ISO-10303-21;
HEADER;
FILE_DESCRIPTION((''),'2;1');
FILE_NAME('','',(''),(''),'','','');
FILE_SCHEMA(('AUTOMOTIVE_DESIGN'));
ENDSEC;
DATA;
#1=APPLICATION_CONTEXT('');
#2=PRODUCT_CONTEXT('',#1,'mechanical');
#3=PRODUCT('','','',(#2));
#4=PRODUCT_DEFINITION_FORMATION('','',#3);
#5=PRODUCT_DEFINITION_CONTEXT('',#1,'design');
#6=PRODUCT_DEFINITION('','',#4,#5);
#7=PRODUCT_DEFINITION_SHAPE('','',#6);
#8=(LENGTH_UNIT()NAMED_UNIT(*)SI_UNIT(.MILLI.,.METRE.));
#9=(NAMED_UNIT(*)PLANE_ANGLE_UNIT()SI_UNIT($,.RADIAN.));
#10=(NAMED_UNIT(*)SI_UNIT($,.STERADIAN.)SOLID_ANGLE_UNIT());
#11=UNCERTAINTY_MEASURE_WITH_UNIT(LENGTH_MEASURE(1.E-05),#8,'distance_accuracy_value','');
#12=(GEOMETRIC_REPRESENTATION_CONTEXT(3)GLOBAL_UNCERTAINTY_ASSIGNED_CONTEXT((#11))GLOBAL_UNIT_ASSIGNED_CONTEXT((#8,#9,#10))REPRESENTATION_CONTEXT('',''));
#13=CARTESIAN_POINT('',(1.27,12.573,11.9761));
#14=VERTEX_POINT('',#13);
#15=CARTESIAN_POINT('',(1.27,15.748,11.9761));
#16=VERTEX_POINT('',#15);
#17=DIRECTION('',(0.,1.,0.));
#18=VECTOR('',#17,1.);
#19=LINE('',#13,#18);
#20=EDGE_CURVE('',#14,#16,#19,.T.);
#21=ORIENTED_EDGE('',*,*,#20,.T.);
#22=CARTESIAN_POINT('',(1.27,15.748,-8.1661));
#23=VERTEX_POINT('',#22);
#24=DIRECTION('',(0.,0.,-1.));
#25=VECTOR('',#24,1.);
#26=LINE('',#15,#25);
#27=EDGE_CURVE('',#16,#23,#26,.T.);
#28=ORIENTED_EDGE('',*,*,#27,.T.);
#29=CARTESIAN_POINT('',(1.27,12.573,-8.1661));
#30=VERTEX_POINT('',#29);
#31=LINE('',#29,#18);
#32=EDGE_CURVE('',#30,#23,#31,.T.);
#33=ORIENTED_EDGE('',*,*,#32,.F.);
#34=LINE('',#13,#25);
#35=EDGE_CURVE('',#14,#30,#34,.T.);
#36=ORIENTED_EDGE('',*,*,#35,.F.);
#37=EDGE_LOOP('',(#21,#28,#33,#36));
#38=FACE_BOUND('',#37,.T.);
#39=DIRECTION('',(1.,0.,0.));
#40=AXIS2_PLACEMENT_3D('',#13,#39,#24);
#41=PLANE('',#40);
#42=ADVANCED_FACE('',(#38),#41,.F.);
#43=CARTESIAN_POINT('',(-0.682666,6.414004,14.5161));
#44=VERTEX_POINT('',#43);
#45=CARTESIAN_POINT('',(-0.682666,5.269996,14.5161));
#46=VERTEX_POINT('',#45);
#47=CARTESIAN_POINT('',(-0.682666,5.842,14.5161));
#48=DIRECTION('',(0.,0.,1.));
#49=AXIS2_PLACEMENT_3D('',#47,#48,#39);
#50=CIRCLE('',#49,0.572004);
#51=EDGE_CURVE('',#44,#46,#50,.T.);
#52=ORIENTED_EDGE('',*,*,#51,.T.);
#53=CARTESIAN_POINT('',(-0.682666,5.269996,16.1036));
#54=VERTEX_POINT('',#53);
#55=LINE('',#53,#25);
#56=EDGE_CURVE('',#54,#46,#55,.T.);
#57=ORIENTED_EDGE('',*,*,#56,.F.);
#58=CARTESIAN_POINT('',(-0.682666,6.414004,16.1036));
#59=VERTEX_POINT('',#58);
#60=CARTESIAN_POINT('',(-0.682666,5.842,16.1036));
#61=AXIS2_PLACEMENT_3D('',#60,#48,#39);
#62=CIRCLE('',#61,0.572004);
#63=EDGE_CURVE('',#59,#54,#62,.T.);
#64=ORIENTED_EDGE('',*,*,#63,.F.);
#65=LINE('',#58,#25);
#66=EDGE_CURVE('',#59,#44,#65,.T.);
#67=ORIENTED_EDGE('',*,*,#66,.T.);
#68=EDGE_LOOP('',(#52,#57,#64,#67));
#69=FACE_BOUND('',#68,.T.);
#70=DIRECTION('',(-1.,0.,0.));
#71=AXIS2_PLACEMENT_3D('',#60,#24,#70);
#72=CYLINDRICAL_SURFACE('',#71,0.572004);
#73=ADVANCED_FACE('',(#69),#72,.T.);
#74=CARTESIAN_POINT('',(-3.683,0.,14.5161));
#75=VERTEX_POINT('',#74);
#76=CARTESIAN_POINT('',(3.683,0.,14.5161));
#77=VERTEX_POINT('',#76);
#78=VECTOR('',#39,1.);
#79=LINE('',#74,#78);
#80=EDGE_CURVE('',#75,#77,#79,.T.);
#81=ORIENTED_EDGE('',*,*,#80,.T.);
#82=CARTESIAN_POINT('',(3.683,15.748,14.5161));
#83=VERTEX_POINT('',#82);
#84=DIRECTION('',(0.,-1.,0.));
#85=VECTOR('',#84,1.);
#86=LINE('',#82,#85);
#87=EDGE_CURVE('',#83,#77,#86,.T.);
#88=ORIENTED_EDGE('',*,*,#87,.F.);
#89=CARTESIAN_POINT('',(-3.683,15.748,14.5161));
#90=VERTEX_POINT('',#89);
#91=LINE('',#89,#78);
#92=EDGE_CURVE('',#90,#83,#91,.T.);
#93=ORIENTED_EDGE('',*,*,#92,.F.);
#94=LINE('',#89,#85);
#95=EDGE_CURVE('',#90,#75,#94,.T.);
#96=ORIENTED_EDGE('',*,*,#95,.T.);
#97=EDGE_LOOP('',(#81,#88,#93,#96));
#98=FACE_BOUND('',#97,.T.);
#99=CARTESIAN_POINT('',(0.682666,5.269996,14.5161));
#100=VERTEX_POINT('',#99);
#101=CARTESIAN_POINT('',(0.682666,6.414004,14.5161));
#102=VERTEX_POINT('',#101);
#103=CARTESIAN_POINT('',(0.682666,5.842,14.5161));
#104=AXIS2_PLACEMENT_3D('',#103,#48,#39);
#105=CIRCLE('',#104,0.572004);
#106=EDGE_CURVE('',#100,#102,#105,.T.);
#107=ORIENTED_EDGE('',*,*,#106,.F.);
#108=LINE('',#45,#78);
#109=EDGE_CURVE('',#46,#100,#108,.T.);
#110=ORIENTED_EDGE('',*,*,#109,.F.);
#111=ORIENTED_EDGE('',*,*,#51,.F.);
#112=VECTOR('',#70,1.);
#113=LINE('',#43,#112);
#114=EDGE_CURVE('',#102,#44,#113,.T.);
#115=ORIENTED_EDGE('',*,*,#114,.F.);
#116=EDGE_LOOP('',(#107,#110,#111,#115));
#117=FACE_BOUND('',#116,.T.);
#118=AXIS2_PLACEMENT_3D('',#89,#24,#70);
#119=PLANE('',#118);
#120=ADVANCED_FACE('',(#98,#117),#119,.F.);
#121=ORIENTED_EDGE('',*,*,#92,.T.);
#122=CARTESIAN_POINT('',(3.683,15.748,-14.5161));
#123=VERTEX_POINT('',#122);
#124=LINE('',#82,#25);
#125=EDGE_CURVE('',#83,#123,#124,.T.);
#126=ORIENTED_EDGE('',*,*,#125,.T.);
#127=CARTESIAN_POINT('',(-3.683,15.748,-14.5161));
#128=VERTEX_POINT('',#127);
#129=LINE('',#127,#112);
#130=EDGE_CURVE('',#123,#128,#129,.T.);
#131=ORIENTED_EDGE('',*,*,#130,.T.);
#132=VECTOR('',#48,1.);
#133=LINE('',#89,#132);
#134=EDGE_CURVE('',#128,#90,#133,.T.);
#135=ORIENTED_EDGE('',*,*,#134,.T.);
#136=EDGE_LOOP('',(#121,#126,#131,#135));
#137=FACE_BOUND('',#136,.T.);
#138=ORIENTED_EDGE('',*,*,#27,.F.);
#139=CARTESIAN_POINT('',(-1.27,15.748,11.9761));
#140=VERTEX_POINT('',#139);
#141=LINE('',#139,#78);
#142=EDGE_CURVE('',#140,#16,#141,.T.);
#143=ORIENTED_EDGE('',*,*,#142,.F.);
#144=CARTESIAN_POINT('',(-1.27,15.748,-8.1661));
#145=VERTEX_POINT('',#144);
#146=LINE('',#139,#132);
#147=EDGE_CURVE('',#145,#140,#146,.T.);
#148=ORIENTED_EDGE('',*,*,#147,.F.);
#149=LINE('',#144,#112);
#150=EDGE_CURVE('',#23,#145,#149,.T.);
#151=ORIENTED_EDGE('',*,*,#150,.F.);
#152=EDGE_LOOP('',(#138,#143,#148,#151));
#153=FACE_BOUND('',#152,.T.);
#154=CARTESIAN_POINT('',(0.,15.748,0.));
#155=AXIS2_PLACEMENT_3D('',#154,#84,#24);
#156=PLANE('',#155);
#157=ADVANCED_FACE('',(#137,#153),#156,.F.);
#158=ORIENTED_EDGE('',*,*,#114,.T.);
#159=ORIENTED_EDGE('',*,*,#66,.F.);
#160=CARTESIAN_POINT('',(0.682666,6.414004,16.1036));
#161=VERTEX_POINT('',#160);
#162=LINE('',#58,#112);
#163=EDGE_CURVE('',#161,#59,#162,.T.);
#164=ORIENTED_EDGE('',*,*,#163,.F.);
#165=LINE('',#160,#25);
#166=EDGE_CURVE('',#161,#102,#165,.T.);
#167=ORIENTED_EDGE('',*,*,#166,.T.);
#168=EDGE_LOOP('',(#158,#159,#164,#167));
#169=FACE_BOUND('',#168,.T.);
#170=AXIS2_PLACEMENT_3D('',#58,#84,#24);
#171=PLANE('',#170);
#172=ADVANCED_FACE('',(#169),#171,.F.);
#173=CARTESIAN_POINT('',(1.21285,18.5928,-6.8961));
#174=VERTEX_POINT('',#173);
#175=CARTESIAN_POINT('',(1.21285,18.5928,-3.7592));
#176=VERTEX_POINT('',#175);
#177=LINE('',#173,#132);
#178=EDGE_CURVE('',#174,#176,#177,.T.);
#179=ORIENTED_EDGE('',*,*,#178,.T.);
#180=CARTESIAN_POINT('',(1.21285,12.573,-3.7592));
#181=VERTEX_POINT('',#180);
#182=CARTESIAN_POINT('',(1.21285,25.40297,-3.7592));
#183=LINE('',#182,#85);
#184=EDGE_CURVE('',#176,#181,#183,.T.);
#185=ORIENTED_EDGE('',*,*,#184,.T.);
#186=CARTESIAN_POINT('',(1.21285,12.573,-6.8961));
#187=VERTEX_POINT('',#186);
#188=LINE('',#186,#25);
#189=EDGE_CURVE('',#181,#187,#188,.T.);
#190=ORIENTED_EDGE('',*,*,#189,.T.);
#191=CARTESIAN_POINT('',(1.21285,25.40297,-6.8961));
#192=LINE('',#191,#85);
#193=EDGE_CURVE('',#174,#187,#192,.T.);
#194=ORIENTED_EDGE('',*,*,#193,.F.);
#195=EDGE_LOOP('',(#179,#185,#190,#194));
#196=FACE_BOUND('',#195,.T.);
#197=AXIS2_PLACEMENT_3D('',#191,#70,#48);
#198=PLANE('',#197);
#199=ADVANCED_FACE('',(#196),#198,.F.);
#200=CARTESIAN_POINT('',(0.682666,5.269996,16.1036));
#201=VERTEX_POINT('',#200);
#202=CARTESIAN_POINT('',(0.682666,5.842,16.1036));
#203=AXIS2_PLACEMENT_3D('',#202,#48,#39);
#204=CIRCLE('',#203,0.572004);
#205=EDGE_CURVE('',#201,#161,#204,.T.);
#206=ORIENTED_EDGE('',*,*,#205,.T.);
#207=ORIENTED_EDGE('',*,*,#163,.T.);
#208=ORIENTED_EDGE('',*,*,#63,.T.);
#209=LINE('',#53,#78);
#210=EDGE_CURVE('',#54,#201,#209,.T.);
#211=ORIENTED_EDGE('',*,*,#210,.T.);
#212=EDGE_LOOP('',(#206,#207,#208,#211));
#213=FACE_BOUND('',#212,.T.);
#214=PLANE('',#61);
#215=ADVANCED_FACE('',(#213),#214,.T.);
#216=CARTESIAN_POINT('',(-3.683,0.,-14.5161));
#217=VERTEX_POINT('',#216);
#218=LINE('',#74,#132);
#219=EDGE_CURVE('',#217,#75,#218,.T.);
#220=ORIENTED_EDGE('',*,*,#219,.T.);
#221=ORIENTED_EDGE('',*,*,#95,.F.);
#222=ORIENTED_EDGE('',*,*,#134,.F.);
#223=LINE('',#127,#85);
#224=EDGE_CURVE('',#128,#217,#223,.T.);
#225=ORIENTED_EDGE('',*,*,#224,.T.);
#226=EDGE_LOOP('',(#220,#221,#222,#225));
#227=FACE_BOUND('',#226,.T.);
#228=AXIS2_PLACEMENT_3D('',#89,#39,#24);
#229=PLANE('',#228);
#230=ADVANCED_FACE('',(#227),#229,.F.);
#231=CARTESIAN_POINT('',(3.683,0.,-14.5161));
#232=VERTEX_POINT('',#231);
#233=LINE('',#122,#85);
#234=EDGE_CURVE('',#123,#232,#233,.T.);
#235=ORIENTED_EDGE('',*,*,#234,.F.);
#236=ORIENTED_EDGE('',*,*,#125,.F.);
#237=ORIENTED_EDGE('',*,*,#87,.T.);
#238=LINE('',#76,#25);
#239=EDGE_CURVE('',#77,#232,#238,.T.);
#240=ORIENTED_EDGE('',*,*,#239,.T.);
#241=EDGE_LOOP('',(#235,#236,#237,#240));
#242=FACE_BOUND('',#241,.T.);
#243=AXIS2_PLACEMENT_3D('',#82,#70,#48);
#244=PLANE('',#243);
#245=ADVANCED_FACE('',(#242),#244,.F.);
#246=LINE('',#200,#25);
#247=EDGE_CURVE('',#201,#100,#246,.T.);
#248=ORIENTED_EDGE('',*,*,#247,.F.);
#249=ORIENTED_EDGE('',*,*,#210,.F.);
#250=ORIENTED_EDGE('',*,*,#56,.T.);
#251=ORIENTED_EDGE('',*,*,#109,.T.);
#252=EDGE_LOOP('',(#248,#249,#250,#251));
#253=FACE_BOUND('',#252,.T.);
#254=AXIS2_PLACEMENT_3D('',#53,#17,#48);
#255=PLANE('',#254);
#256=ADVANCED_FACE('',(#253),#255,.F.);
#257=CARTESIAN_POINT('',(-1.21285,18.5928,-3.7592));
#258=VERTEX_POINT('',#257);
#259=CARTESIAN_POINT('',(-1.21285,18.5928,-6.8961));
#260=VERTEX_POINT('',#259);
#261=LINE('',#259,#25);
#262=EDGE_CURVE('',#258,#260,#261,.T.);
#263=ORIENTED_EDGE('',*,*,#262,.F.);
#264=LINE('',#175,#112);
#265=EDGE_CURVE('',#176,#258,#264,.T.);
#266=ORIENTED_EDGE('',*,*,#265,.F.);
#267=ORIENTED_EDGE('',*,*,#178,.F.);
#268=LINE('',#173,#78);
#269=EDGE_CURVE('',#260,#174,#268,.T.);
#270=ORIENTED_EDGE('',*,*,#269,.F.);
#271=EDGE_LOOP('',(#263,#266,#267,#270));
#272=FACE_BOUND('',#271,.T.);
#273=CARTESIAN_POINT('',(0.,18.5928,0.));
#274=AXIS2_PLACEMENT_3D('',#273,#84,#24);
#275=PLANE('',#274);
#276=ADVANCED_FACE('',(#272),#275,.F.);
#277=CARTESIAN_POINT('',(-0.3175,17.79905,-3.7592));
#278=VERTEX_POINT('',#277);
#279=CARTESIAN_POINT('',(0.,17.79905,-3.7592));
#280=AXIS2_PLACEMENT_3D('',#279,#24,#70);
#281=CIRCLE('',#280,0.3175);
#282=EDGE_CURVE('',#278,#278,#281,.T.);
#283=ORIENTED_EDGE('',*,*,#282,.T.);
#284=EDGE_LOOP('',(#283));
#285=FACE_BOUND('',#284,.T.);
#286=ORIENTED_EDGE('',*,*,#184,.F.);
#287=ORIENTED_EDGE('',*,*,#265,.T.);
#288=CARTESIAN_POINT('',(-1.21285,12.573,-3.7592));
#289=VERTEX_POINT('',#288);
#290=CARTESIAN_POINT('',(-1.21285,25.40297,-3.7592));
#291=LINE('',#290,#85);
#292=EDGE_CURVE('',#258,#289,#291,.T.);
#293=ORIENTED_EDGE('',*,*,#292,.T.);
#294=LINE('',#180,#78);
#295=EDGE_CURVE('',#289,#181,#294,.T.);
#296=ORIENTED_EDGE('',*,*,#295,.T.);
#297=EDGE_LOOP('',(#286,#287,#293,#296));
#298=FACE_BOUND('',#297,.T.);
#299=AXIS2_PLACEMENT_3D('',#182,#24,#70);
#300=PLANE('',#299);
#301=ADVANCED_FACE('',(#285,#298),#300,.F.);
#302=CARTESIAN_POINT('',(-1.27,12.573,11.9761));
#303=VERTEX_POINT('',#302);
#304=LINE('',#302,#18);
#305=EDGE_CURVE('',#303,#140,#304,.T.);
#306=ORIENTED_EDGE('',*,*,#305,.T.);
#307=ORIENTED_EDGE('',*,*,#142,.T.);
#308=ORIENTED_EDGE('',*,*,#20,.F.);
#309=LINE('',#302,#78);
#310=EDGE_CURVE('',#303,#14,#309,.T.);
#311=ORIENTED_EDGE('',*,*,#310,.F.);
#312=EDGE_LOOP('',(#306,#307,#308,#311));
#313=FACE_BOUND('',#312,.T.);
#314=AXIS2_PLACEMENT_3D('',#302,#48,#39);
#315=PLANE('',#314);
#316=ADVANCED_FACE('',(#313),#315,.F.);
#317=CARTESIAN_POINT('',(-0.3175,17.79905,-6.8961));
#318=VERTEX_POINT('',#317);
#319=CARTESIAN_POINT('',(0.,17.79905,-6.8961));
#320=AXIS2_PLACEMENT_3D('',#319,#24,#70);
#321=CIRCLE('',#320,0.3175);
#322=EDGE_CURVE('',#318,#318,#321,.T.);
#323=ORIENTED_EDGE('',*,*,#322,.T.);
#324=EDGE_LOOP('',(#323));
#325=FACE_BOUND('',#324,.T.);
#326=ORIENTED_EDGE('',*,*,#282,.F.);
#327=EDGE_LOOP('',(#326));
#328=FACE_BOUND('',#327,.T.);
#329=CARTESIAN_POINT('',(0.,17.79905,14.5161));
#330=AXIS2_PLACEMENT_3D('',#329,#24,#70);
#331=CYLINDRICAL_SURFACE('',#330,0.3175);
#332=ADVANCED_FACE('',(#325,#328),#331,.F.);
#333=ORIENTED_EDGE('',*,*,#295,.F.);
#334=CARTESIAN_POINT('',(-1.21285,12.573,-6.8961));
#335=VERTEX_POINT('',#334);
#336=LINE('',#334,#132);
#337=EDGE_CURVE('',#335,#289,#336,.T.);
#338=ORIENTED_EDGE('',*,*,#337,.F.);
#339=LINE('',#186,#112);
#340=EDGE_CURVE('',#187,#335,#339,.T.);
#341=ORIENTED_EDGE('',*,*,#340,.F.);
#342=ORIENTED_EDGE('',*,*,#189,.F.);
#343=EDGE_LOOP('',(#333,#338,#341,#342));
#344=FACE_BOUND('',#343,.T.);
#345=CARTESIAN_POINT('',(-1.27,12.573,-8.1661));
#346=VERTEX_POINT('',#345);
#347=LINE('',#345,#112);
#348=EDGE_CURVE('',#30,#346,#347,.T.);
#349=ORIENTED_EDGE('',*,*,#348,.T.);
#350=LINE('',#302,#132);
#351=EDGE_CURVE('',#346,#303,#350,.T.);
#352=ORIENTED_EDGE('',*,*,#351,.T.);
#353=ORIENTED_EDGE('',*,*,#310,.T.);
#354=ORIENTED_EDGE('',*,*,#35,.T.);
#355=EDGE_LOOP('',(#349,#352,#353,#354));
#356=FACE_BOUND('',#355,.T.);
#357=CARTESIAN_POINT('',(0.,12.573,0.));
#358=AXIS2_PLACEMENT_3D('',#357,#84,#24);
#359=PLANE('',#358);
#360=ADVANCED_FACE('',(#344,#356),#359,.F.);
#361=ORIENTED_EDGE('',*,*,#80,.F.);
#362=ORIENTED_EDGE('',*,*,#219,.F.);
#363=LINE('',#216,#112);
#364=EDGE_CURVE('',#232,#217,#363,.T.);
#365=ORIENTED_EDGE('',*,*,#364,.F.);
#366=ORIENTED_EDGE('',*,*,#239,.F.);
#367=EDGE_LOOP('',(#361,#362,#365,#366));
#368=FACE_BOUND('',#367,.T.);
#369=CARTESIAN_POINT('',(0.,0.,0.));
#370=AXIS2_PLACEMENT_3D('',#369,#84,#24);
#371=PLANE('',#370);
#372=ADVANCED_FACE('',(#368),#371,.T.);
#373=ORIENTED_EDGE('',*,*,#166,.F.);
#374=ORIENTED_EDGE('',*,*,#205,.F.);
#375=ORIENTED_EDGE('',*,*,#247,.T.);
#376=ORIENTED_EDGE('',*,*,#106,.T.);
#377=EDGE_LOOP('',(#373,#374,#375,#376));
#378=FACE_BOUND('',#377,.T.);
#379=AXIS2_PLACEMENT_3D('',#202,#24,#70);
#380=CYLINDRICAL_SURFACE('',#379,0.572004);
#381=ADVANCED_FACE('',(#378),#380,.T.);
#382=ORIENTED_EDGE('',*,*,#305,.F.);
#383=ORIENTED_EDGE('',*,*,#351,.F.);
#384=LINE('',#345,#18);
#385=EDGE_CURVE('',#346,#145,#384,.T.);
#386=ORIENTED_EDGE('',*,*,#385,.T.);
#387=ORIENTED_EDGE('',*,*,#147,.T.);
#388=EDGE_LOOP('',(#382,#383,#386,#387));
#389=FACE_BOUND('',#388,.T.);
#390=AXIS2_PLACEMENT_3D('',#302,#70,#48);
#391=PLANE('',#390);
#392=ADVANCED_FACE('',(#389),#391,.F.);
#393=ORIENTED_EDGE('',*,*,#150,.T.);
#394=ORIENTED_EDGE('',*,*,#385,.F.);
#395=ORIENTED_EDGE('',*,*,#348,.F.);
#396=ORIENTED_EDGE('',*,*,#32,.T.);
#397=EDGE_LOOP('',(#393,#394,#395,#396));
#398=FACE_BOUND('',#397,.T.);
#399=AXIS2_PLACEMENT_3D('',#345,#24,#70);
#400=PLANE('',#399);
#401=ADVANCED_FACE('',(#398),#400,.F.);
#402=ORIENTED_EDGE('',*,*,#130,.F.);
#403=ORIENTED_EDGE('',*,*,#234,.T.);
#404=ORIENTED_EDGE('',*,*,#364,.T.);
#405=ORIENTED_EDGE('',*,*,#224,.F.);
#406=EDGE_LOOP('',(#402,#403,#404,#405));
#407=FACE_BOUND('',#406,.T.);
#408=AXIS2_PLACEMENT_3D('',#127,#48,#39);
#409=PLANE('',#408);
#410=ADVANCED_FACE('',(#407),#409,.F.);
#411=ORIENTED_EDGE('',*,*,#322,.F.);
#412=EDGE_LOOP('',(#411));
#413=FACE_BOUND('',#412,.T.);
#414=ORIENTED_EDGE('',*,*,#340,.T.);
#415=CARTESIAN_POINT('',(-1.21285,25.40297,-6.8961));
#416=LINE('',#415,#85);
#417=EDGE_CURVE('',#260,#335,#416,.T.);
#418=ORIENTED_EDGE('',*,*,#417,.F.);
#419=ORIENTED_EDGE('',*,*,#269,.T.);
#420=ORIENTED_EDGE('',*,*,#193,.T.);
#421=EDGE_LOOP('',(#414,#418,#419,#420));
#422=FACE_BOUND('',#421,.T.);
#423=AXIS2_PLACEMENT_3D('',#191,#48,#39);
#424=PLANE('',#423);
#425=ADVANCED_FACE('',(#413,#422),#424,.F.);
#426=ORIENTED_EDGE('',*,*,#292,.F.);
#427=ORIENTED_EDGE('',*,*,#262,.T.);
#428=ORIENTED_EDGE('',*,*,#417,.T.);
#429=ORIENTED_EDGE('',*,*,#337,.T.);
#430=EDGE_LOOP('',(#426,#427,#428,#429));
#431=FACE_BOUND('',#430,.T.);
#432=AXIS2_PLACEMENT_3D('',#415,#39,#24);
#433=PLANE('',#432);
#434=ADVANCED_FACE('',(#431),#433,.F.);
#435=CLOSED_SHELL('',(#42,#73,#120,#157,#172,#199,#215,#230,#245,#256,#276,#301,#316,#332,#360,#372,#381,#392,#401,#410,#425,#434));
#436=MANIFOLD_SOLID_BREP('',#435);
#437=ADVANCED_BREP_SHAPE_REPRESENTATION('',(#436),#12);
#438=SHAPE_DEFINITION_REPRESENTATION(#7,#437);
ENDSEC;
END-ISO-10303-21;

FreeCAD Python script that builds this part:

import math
import FreeCAD as App
import Part
import Sketcher

V = App.Vector
Q = App.Units.Quantity

doc = App.newDocument("Part")
body = doc.addObject("PartDesign::Body", "Body")

# Sketch on XZ plane
sketch1 = doc.addObject("Sketcher::SketchObject", "Sketch")
body.addObject(sketch1)
sketch1.AttachmentSupport = (doc.XZ_Plane, [""])
sketch1.MapMode = "FlatFace"
sketch1.addGeometry([
    Part.LineSegment(V(-4, -15, 0), V(-4, 15, 0)),
    Part.LineSegment(V(-4, 15, 0), V(4, 15, 0)),
    Part.LineSegment(V(4, 15, 0), V(4, -15, 0)),
    Part.LineSegment(V(4, -15, 0), V(-4, -15, 0)),
], False)
sketch1.addConstraint([
    Sketcher.Constraint("Coincident", 0, 2, 1, 1),
    Sketcher.Constraint("Coincident", 1, 2, 2, 1),
    Sketcher.Constraint("Coincident", 2, 2, 3, 1),
    Sketcher.Constraint("Coincident", 3, 2, 0, 1),
    Sketcher.Constraint("Vertical", 0),
    Sketcher.Constraint("Horizontal", 1),
    Sketcher.Constraint("Vertical", 2),
    Sketcher.Constraint("Horizontal", 3),
    Sketcher.Constraint("Symmetric", 0, 2, 2, 2, -1, 1),
    Sketcher.Constraint("DistanceX", 1, 1, 1, 2, Q("0.29 in")),
    Sketcher.Constraint("DistanceY", 0, 1, 0, 2, Q("1.143 in")),
])
pad1 = doc.addObject("PartDesign::Pad", "Pad")
body.addObject(pad1)
pad1.Profile = sketch1
pad1.Length = Q("0.62 in")
pad1.Reversed = True

# Sketch on XZ plane
sketch2 = doc.addObject("Sketcher::SketchObject", "Sketch001")
body.addObject(sketch2)
sketch2.AttachmentSupport = (doc.XZ_Plane, [""])
sketch2.MapMode = "FlatFace"
sketch2.AttachmentOffset = App.Placement(V(0, 0, -0.62 * 25.4), App.Rotation())
sketch2.addGeometry([
    Part.LineSegment(V(-1.3, -8.2, 0), V(-1.3, 12, 0)),
    Part.LineSegment(V(-1.3, 12, 0), V(1.3, 12, 0)),
    Part.LineSegment(V(1.3, 12, 0), V(1.3, -8.2, 0)),
    Part.LineSegment(V(1.3, -8.2, 0), V(-1.3, -8.2, 0)),
], False)
sketch2.addConstraint([
    Sketcher.Constraint("Coincident", 0, 2, 1, 1),
    Sketcher.Constraint("Coincident", 1, 2, 2, 1),
    Sketcher.Constraint("Coincident", 2, 2, 3, 1),
    Sketcher.Constraint("Coincident", 3, 2, 0, 1),
    Sketcher.Constraint("Vertical", 0),
    Sketcher.Constraint("Horizontal", 1),
    Sketcher.Constraint("Vertical", 2),
    Sketcher.Constraint("Horizontal", 3),
    Sketcher.Constraint("DistanceX", 1, 1, 1, 2, Q("0.1 in")),
    Sketcher.Constraint("DistanceY", 0, 1, 0, 2, Q("0.793 in")),
    Sketcher.Constraint("DistanceX", 0, 2, -1, 1, Q("0.05 in")),
    Sketcher.Constraint("DistanceY", -1, 1, 0, 2, Q("0.4715 in")),
])
pocket1 = doc.addObject("PartDesign::Pocket", "Pocket")
body.addObject(pocket1)
pocket1.Profile = sketch2
pocket1.Length = Q("0.125 in")
pocket1.Reversed = True

# Sketch on XZ plane
sketch3 = doc.addObject("Sketcher::SketchObject", "Sketch002")
body.addObject(sketch3)
sketch3.AttachmentSupport = (doc.XZ_Plane, [""])
sketch3.MapMode = "FlatFace"
sketch3.AttachmentOffset = App.Placement(V(0, 0, -0.495 * 25.4), App.Rotation())
sketch3.addGeometry([
    Part.LineSegment(V(-1.2, -6.9, 0), V(-1.2, -3.8, 0)),
    Part.LineSegment(V(-1.2, -3.8, 0), V(1.2, -3.8, 0)),
    Part.LineSegment(V(1.2, -3.8, 0), V(1.2, -6.9, 0)),
    Part.LineSegment(V(1.2, -6.9, 0), V(-1.2, -6.9, 0)),
], False)
sketch3.addConstraint([
    Sketcher.Constraint("Coincident", 0, 2, 1, 1),
    Sketcher.Constraint("Coincident", 1, 2, 2, 1),
    Sketcher.Constraint("Coincident", 2, 2, 3, 1),
    Sketcher.Constraint("Coincident", 3, 2, 0, 1),
    Sketcher.Constraint("Vertical", 0),
    Sketcher.Constraint("Horizontal", 1),
    Sketcher.Constraint("Vertical", 2),
    Sketcher.Constraint("Horizontal", 3),
    Sketcher.Constraint("DistanceX", 1, 1, 1, 2, Q("0.0955 in")),
    Sketcher.Constraint("DistanceY", 0, 1, 0, 2, Q("0.1235 in")),
    Sketcher.Constraint("DistanceY", 0, 2, -1, 1, Q("0.148 in")),
    Sketcher.Constraint("DistanceX", 0, 2, -1, 1, Q("1.21285 mm")),
])
pad2 = doc.addObject("PartDesign::Pad", "Pad001")
body.addObject(pad2)
pad2.Profile = sketch3
pad2.Length = Q("0.237 in")
pad2.Reversed = True

# Sketch on XY plane
sketch4 = doc.addObject("Sketcher::SketchObject", "Sketch003")
body.addObject(sketch4)
sketch4.AttachmentSupport = (doc.XY_Plane, [""])
sketch4.MapMode = "FlatFace"
sketch4.AttachmentOffset = App.Placement(V(0, 0, -0.2715 * 25.4), App.Rotation())
sketch4.addGeometry(Part.Circle(V(0, 17.8, 0), V(0, 0, 1), 0.32), False)
sketch4.addConstraint([
    Sketcher.Constraint("PointOnObject", 0, 3, -2),
    Sketcher.Constraint("Diameter", 0, Q("0.025 in")),
    Sketcher.Constraint("DistanceY", -1, 1, 0, 3, Q("17.79905 mm")),
])
pocket2 = doc.addObject("PartDesign::Pocket", "Pocket001")
body.addObject(pocket2)
pocket2.Profile = sketch4
pocket2.Type = "ThroughAll"
pocket2.Reversed = True

# Sketch on XY plane
sketch5 = doc.addObject("Sketcher::SketchObject", "Sketch004")
body.addObject(sketch5)
sketch5.AttachmentSupport = (doc.XY_Plane, [""])
sketch5.MapMode = "FlatFace"
sketch5.AttachmentOffset = App.Placement(V(0, 0, 0.5715 * 25.4), App.Rotation())
sketch5.addGeometry([
    Part.LineSegment(V(0.7, 6.4, 0), V(-0.7, 6.4, 0)),
    Part.ArcOfCircle(Part.Circle(V(-0.7, 5.8, 0), V(0, 0, 1), 0.6), math.radians(90), math.radians(270)),
    Part.LineSegment(V(-0.7, 5.3, 0), V(0.7, 5.3, 0)),
    Part.ArcOfCircle(Part.Circle(V(0.7, 5.8, 0), V(0, 0, 1), 0.6), math.radians(-90), math.radians(90)),
], False)
sketch5.addConstraint([
    Sketcher.Constraint("Tangent", 0, 2, 1, 1),
    Sketcher.Constraint("Tangent", 1, 2, 2, 1),
    Sketcher.Constraint("Tangent", 2, 2, 3, 1),
    Sketcher.Constraint("Tangent", 3, 2, 0, 1),
    Sketcher.Constraint("Horizontal", 0),
    Sketcher.Constraint("Horizontal", 2),
    Sketcher.Constraint("DistanceY", -1, 1, 1, 3, Q("0.23 in")),
    Sketcher.Constraint("Radius", 1, Q("0.572004 mm")),
    Sketcher.Constraint("DistanceX", 0, 2, 0, 1, Q("1.365333 mm")),
    Sketcher.Constraint("DistanceX", 1, 3, -1, 1, Q("0.682666 mm")),
])
pad3 = doc.addObject("PartDesign::Pad", "Pad002")
body.addObject(pad3)
pad3.Profile = sketch5
pad3.Length = Q("0.0625 in")

doc.recompute()
